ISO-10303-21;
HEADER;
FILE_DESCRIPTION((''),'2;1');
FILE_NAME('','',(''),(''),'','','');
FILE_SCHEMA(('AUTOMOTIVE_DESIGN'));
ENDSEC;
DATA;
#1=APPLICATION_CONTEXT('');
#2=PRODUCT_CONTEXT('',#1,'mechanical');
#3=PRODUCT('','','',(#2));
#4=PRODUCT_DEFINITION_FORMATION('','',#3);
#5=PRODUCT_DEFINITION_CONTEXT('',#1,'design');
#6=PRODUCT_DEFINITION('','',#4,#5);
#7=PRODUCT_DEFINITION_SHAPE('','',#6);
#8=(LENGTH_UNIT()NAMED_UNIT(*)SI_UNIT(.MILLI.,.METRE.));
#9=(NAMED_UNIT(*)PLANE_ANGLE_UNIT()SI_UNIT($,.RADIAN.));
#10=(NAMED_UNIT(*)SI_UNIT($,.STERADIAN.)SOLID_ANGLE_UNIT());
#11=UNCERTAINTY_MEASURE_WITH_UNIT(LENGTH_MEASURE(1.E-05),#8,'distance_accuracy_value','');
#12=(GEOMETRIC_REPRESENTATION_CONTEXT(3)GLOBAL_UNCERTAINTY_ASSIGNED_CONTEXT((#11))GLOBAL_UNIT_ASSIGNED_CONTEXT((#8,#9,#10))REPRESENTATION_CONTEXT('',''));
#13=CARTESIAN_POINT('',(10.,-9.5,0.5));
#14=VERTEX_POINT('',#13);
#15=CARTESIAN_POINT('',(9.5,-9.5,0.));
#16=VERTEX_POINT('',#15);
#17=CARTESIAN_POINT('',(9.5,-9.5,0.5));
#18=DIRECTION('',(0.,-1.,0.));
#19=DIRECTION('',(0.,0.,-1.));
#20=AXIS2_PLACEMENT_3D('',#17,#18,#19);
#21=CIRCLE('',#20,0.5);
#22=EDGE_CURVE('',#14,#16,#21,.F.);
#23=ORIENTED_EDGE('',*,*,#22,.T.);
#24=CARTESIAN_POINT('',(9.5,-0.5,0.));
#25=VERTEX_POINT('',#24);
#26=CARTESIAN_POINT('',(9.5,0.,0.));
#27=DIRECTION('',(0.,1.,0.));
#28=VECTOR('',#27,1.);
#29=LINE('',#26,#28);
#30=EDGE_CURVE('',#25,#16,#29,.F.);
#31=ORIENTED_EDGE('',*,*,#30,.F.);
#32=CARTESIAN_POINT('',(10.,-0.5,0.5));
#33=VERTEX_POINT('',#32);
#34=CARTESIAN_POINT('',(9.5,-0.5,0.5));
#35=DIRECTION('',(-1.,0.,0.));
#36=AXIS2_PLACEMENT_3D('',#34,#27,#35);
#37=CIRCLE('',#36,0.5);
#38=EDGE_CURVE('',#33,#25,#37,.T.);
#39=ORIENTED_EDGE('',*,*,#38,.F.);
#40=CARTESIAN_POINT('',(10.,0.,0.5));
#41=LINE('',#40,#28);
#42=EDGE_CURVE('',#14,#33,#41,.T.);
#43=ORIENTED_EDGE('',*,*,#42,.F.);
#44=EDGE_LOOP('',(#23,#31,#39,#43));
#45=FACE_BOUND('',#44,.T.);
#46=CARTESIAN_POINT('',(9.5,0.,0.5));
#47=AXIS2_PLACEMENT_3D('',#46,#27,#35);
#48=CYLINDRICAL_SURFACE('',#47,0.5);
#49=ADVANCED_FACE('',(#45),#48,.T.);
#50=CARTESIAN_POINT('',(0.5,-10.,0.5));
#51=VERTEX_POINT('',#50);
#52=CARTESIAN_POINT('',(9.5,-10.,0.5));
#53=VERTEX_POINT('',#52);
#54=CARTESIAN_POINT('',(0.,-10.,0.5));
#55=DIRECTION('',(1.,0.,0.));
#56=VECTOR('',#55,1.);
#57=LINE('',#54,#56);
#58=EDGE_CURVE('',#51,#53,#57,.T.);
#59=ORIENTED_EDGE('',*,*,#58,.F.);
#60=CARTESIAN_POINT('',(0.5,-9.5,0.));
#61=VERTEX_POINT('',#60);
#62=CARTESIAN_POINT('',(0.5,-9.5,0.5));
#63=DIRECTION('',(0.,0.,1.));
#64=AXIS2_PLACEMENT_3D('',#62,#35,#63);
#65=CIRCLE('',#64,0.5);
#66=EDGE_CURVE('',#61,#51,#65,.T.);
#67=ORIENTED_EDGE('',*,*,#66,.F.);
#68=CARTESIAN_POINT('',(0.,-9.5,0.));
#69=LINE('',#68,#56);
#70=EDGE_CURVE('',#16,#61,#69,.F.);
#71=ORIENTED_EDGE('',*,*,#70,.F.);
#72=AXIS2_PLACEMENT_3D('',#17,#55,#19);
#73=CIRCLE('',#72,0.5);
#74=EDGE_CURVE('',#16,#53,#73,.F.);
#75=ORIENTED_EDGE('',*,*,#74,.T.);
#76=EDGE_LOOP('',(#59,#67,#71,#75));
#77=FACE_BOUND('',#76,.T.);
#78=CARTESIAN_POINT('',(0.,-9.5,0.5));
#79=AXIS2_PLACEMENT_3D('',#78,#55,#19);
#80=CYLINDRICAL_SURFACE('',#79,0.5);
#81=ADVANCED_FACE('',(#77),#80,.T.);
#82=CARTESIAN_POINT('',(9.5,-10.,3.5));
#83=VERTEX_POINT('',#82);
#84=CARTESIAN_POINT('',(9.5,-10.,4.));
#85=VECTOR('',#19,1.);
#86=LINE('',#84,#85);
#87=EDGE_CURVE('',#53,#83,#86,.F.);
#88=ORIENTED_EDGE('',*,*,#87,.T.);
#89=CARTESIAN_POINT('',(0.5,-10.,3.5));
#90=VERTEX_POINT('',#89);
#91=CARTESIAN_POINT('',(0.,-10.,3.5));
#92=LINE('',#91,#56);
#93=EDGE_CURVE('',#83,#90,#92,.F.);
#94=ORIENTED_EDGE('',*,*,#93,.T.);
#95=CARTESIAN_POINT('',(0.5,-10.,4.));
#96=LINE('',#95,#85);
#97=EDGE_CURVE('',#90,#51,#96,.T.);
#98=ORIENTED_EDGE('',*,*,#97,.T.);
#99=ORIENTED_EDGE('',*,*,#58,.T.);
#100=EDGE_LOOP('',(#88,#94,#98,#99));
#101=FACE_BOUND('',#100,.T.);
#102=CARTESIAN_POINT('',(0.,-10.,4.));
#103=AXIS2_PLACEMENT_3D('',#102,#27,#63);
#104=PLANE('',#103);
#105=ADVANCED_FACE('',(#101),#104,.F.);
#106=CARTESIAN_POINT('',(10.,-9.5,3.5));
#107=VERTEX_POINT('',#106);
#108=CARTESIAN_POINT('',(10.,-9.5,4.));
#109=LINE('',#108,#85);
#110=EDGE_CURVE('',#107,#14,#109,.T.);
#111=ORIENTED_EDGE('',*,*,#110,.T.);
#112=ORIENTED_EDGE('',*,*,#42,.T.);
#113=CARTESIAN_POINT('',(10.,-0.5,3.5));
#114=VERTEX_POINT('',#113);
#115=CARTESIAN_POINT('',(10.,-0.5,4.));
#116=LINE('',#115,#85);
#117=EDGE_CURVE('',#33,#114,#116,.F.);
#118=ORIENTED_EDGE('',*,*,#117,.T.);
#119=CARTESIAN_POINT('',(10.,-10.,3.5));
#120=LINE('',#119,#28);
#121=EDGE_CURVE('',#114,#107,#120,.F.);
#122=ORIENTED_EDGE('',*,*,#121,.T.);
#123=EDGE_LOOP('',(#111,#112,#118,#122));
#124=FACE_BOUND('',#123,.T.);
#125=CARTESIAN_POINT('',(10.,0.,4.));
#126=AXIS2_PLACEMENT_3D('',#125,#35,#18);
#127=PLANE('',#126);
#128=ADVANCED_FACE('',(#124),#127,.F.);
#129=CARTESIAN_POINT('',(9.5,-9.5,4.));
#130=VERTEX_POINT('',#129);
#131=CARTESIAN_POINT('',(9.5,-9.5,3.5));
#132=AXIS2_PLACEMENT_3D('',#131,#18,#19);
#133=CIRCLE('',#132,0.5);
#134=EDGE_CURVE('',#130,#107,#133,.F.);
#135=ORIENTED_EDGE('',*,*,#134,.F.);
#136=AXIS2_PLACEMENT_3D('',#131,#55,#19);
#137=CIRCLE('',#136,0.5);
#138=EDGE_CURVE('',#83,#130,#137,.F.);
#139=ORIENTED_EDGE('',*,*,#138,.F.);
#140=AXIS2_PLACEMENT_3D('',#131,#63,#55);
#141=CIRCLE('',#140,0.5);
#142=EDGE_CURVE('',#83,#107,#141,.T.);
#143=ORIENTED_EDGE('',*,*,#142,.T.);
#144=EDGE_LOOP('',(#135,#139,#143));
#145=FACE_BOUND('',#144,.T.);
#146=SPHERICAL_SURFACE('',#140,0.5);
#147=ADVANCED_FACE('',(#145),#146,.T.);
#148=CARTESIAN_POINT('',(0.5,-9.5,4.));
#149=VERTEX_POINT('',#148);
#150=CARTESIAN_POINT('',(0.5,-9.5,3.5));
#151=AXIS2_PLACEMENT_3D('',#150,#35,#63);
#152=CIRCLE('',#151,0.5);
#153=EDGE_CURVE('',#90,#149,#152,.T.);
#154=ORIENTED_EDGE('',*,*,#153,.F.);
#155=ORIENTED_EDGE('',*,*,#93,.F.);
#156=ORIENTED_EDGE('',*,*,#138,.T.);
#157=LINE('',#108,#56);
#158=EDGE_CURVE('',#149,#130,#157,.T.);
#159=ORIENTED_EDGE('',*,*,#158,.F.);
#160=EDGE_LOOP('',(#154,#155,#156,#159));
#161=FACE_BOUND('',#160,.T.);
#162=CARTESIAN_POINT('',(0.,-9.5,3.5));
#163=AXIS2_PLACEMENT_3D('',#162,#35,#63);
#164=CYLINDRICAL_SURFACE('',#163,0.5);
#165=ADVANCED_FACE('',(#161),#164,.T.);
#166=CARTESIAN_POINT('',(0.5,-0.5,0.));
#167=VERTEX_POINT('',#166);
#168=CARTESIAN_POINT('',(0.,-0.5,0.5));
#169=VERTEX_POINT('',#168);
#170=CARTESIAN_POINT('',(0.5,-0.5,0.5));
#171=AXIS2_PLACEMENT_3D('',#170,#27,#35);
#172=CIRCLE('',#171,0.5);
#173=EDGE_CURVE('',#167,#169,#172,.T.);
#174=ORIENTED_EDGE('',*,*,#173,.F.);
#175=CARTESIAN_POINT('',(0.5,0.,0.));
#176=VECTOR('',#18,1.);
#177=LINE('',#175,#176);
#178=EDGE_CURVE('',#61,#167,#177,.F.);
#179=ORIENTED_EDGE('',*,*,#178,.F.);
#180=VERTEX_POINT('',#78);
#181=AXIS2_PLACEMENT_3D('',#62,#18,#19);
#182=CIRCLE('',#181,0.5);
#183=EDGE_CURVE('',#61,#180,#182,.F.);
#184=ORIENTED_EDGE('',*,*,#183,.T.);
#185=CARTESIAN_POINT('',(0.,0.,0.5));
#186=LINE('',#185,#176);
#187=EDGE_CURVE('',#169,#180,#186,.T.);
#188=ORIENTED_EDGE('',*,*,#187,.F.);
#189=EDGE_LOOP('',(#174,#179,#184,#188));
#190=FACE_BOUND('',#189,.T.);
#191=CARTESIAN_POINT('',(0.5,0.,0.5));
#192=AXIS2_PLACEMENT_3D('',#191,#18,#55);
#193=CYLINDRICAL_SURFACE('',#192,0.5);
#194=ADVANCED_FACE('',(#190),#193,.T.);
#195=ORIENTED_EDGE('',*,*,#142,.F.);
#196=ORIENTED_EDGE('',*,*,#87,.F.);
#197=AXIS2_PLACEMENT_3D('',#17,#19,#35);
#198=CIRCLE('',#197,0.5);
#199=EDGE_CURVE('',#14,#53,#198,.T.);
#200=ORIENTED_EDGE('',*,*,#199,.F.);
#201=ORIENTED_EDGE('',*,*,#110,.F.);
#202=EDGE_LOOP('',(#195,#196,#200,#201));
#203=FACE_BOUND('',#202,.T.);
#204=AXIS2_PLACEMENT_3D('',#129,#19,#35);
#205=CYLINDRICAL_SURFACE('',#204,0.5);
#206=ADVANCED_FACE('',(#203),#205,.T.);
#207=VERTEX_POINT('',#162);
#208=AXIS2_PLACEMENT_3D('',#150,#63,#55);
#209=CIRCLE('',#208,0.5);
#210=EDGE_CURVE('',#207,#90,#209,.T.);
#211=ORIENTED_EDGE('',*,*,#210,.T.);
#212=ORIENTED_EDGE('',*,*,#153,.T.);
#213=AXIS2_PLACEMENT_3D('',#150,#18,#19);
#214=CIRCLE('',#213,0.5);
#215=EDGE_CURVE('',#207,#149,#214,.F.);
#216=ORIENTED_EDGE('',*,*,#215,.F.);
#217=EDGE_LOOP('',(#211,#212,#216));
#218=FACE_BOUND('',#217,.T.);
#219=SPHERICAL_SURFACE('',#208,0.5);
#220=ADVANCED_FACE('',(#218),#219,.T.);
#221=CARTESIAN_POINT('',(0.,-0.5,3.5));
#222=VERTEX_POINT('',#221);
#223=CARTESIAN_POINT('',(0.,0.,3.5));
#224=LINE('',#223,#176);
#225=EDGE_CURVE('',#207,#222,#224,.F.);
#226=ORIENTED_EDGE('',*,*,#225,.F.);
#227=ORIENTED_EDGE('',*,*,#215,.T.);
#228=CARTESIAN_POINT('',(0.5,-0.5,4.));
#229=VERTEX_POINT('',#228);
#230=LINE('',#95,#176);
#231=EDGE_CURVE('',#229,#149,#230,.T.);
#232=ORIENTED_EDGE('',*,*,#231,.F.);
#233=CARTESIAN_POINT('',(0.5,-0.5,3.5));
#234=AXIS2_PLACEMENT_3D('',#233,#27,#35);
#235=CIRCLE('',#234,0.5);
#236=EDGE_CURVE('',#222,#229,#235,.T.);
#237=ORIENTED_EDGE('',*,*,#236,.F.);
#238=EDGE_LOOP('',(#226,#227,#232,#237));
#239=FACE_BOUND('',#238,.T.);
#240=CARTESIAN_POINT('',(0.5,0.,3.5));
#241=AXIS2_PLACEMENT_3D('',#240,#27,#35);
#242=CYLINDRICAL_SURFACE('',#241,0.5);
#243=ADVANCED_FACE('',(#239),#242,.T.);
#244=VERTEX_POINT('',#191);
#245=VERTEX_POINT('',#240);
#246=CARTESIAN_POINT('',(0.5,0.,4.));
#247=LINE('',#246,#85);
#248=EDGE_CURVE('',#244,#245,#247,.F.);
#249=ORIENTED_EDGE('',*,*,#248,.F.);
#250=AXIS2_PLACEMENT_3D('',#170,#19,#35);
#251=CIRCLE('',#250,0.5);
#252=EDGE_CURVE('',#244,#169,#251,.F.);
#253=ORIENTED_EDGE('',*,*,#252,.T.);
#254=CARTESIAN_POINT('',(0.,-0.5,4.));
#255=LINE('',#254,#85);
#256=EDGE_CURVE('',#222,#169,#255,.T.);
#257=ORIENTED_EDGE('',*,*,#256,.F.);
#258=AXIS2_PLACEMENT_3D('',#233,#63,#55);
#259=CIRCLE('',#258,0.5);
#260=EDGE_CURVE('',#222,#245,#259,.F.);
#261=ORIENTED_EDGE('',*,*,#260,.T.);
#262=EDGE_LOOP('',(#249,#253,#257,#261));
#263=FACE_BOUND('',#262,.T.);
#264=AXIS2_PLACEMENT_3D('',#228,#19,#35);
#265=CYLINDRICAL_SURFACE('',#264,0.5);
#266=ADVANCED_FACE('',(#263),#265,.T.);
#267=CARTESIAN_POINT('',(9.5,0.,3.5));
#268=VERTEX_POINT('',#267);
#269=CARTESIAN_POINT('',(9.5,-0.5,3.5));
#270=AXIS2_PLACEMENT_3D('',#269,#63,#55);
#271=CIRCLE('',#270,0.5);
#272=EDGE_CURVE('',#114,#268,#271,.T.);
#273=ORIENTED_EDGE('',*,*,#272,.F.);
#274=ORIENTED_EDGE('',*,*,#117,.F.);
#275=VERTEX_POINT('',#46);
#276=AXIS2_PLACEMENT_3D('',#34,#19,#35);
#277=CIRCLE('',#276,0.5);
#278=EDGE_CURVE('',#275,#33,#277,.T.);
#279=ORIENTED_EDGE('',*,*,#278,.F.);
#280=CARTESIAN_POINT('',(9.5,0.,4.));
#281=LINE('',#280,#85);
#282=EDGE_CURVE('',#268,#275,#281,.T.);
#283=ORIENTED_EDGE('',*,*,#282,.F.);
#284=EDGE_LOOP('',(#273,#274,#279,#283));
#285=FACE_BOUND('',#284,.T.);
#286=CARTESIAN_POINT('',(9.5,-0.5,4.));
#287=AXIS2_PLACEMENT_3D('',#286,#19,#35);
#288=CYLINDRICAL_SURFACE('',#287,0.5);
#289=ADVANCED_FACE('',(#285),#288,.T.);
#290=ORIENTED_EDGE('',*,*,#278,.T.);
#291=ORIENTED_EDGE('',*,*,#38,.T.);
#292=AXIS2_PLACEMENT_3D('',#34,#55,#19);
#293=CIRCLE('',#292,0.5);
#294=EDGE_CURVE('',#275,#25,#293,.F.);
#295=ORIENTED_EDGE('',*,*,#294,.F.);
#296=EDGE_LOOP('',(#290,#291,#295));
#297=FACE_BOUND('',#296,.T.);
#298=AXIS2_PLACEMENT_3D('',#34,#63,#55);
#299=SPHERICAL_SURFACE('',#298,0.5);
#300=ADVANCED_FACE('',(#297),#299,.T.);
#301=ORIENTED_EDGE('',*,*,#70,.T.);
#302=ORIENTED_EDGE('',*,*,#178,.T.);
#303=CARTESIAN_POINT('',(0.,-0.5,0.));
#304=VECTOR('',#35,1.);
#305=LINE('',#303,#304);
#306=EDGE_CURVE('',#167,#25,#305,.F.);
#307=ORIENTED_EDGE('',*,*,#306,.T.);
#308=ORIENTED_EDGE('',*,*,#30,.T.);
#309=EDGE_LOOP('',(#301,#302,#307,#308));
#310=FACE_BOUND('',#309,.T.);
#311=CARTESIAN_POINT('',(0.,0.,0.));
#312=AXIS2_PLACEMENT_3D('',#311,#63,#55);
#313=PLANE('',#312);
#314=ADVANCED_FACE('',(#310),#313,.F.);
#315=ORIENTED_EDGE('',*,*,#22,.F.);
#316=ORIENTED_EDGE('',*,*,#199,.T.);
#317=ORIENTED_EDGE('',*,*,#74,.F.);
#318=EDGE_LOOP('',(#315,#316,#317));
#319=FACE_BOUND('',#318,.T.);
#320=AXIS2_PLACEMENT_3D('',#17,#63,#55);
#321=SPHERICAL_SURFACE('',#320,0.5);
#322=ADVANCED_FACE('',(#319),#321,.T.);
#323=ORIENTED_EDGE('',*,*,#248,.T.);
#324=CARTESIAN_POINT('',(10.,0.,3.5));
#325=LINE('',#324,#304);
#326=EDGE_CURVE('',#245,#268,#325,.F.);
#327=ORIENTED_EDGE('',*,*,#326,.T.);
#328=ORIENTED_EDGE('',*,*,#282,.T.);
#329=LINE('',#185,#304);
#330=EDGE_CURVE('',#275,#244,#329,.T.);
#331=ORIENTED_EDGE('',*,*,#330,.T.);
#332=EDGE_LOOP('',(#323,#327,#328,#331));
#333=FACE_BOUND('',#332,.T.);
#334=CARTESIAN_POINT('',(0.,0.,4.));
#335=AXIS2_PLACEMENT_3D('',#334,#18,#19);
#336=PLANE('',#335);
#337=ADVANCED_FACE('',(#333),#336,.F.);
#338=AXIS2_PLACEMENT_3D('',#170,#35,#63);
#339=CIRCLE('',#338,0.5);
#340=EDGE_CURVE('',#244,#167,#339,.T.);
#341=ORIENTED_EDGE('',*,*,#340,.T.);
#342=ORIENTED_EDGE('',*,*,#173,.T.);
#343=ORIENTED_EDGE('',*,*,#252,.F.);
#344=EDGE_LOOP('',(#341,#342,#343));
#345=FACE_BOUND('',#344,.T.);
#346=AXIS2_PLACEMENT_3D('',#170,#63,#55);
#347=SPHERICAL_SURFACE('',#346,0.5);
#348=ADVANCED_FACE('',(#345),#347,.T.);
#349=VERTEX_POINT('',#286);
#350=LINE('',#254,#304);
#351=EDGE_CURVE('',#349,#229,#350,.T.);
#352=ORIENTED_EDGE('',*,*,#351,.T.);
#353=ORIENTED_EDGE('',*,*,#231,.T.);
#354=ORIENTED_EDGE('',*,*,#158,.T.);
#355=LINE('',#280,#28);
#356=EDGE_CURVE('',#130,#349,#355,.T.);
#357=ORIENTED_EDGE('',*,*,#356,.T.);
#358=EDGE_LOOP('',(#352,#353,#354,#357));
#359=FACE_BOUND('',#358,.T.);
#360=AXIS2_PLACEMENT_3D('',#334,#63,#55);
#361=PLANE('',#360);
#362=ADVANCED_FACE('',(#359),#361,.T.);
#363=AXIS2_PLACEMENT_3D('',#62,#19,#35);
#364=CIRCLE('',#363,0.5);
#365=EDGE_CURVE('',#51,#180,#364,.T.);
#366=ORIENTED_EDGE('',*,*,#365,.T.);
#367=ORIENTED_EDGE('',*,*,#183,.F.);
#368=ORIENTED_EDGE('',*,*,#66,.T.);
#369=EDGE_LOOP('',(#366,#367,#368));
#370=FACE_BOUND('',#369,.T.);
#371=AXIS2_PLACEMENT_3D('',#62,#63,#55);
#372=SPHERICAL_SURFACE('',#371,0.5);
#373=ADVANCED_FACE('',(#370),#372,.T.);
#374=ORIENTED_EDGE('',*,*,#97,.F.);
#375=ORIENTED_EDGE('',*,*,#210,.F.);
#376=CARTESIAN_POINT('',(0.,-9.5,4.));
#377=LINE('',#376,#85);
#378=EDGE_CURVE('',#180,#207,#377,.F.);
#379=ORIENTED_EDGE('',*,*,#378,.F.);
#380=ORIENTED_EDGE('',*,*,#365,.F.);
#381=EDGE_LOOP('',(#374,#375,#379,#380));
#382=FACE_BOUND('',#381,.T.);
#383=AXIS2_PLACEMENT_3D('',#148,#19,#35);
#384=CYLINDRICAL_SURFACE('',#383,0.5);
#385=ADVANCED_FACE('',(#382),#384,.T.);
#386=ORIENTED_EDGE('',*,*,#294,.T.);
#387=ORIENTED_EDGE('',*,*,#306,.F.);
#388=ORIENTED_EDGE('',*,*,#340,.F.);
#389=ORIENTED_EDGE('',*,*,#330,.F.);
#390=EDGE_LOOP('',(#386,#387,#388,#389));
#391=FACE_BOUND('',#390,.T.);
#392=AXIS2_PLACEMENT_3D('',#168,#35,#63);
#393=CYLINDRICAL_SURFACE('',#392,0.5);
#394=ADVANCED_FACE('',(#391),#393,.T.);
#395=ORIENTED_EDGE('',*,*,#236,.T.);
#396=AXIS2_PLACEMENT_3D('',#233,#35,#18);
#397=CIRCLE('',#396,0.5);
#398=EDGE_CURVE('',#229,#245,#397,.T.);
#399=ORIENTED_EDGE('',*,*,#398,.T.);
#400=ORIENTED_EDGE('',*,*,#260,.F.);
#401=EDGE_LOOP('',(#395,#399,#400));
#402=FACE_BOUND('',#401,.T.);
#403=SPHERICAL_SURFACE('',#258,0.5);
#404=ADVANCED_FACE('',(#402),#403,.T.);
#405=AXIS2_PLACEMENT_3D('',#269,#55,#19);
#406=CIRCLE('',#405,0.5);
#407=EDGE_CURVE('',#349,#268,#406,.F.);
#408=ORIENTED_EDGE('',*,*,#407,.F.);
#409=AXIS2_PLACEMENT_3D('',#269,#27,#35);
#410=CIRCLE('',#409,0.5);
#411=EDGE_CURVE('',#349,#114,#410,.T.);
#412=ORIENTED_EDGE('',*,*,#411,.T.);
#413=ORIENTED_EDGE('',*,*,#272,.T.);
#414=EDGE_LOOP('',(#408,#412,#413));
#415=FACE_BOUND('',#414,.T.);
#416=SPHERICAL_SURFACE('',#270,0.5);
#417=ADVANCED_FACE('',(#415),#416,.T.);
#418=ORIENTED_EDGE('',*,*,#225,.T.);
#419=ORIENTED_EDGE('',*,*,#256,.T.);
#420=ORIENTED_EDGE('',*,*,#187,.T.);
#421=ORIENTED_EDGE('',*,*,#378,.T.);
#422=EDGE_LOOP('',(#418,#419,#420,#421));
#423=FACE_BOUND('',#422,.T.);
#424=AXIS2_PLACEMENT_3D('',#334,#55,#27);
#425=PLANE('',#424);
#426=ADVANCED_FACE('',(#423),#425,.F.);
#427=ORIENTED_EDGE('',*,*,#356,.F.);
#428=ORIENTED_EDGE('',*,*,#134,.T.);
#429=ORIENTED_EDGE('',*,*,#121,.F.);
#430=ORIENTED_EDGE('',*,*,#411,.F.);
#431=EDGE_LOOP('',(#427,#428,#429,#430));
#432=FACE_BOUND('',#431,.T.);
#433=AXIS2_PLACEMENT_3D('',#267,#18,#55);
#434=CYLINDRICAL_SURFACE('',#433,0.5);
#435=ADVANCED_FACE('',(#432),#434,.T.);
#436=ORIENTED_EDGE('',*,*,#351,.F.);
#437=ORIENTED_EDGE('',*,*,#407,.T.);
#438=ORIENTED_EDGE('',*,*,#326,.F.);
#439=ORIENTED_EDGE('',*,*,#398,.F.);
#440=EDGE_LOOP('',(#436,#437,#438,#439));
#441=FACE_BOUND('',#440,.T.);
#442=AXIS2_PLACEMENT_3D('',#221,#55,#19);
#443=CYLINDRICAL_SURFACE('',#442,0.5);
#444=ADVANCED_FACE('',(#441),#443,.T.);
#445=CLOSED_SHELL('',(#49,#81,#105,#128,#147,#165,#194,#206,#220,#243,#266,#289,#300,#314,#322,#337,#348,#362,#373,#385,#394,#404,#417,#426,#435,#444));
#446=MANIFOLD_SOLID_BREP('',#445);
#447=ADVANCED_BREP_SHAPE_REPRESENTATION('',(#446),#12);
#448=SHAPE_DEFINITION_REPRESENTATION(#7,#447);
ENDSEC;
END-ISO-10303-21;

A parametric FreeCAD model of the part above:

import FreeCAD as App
import Part
import Sketcher
Q = App.Units.Quantity


def add_polygon(sketch, points):
    """Adds a closed chain of lines whose ends are joined by coincident constraints."""
    first, n = sketch.GeometryCount, len(points)
    for a, b in zip(points, points[1:] + points[:1]):
        sketch.addGeometry(Part.LineSegment(App.Vector(*a, 0), App.Vector(*b, 0)), False)
    for i in range(n):
        sketch.addConstraint(Sketcher.Constraint("Coincident", first + i, 2, first + (i + 1) % n, 1))

doc = App.newDocument("Part")
body = doc.addObject("PartDesign::Body", "Body")

# Sketch on XY plane
sketch1 = body.newObject("Sketcher::SketchObject", "Sketch")
sketch1.AttachmentSupport = (doc.getObject("XY_Plane"), [""])
sketch1.MapMode = "FlatFace"
add_polygon(sketch1, [(0, 0), (0, -10), (10, -10), (10, 0)])  # lines 0-3
sketch1.addConstraint(Sketcher.Constraint("Vertical", 0))
sketch1.addConstraint(Sketcher.Constraint("Horizontal", 1))
sketch1.addConstraint(Sketcher.Constraint("Vertical", 2))
sketch1.addConstraint(Sketcher.Constraint("Horizontal", 3))
sketch1.addConstraint(Sketcher.Constraint("Coincident", 3, 2, -1, 1))
sketch1.addConstraint(Sketcher.Constraint("Equal", 3, 0))
sketch1.addConstraint(Sketcher.Constraint("DistanceX", 1, 1, 1, 2, Q("10 mm")))
pad1 = body.newObject("PartDesign::Pad", "Pad")
pad1.Profile = sketch1
pad1.Length = 4
doc.recompute()

fillet = body.newObject("PartDesign::Fillet", "Fillet")
fillet.Base = (pad1, ["Edge1"])
fillet.UseAllEdges = True
fillet.Radius = 0.5

doc.recompute()
